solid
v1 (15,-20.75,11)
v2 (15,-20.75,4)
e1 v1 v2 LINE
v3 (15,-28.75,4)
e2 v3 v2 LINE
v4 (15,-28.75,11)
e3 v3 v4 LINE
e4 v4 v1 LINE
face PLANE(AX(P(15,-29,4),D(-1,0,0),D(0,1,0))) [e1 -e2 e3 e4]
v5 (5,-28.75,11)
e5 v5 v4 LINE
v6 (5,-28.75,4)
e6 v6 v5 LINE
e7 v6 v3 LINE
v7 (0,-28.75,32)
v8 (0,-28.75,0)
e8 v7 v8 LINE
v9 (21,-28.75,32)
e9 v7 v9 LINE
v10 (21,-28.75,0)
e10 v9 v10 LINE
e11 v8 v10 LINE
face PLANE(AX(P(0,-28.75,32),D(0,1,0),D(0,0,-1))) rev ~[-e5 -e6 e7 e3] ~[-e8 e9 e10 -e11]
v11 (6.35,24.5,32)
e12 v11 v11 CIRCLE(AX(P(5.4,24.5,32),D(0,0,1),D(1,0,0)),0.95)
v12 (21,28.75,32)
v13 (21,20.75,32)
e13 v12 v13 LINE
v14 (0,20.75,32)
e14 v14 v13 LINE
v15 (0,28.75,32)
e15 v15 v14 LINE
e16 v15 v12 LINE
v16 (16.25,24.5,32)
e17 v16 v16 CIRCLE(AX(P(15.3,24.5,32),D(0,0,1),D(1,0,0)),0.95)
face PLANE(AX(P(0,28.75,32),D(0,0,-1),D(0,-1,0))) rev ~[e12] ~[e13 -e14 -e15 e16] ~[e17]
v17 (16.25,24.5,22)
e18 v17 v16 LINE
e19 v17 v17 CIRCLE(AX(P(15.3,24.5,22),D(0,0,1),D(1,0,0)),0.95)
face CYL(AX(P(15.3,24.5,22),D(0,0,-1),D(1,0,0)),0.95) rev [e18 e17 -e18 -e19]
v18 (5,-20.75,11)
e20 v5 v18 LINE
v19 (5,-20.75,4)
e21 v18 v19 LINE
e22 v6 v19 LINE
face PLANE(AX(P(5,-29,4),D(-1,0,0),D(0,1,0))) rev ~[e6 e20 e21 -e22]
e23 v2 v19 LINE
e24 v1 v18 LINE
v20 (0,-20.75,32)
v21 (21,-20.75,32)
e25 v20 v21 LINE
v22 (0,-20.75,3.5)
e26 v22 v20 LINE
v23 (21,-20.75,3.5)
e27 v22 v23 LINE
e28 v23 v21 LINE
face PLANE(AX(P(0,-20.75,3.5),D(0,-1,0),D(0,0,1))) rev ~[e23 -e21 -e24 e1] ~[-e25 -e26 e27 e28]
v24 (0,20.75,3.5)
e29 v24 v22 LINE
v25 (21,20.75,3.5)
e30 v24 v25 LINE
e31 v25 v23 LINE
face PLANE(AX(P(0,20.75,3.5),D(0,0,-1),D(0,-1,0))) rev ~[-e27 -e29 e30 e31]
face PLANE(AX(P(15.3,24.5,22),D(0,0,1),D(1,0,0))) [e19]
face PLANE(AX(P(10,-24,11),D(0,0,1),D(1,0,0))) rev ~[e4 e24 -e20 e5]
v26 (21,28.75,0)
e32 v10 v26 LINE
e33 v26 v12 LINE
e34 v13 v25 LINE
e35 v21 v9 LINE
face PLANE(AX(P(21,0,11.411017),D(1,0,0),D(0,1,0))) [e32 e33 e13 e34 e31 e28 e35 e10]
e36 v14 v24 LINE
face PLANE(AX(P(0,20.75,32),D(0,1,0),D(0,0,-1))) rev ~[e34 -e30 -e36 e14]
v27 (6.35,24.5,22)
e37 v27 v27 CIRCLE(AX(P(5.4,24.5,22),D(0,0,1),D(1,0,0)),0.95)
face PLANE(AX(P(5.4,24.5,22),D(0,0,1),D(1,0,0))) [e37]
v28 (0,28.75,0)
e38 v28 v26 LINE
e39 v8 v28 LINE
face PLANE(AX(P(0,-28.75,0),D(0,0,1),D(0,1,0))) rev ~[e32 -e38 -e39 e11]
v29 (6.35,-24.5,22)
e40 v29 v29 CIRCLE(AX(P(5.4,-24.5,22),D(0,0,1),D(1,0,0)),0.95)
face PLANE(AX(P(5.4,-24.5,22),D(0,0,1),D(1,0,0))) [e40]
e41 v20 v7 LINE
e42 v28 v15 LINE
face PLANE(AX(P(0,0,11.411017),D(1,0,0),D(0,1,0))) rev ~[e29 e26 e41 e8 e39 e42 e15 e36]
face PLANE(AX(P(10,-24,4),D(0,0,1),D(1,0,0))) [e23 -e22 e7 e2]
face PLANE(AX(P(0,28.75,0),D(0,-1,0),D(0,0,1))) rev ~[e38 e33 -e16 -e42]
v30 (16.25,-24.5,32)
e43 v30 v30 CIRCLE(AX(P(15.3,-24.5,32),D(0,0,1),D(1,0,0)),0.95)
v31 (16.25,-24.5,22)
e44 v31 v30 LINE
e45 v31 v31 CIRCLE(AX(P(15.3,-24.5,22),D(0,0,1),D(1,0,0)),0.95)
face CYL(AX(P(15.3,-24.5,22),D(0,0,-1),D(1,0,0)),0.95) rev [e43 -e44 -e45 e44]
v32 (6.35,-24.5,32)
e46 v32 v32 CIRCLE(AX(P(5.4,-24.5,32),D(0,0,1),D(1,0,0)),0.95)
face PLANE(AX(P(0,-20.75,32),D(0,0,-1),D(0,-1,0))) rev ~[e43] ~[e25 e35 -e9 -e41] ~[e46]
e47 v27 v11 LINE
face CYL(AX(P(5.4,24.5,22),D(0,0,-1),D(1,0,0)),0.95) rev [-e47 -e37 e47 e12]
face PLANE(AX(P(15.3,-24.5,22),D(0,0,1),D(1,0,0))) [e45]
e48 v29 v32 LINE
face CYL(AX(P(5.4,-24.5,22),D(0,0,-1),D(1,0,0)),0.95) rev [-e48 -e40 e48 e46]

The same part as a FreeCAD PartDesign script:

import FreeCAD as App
import Part
import Sketcher
from FreeCAD import Vector
Q = App.Units.Quantity

doc = App.newDocument("Part")
params = doc.addObject("Spreadsheet::Sheet", "Params")
for row, (alias, value) in enumerate([
    ("sketch1_diameter", "1.9 mm"),
    ("pad1_length", "10 mm"),
    ("sketch2_diameter", "1.9 mm"),
    ("pad2_length", "10 mm"),
    ("sketch3_diameter", "1.9 mm"),
    ("pad3_length", "10 mm"),
    ("sketch4_diameter", "1.9 mm"),
    ("pad4_length", "10 mm"),
    ("sketch5_width", "10 mm"),
    ("pad5_length", "7 mm"),
    ("sketch6_width", "8 mm"),
    ("sketch6_height", "32 mm"),
    ("sketch6_width2", "57.5 mm"),
    ("sketch6_height2", "28.5 mm"),
    ("pad6_length", "21 mm"),
], start=1):
    params.set(f"A{row}", alias)
    params.set(f"B{row}", "=" + value)
    params.setAlias(f"B{row}", alias)

body = doc.addObject("PartDesign::Body", "Body")

# Sketch on XY plane
sketch1 = body.newObject("Sketcher::SketchObject", "Sketch")
sketch1.AttachmentSupport = (doc.getObject("XY_Plane"), [""])
sketch1.MapMode = "FlatFace"
sketch1.addGeometry(Part.Circle(Vector(9.9, 0, 0), Vector(0, 0, 1), 0.9), False)
sketch1.addConstraint(Sketcher.Constraint("PointOnObject", 0, 3, -1))
sketch1.addConstraint(Sketcher.Constraint("Diameter", 0, Q("1.9 mm")))
sketch1.addConstraint(Sketcher.Constraint("DistanceX", -1, 1, 0, 3, Q("9.9 mm")))
sketch1.setExpression("Constraints[1]", "Params.sketch1_diameter")
pad1 = body.newObject("PartDesign::Pad", "Pad")
pad1.Profile = sketch1
pad1.setExpression("Length", "Params.pad1_length")
body2 = doc.addObject("PartDesign::Body", "Body001")
body2.AllowCompound = True

# Sketch on XY plane
sketch2 = body2.newObject("Sketcher::SketchObject", "Sketch001")
sketch2.AttachmentSupport = (doc.getObject("XY_Plane001"), [""])
sketch2.MapMode = "FlatFace"
sketch2.addGeometry(Part.Circle(Vector(0, 0, 0), Vector(0, 0, 1), 0.9), False)
sketch2.addConstraint(Sketcher.Constraint("Coincident", 0, 3, -1, 1))
sketch2.addConstraint(Sketcher.Constraint("Diameter", 0, Q("1.9 mm")))
sketch2.setExpression("Constraints[1]", "Params.sketch2_diameter")
pad2 = body2.newObject("PartDesign::Pad", "Pad001")
pad2.Profile = sketch2
pad2.setExpression("Length", "Params.pad2_length")
doc.recompute()

boolean = body2.newObject("PartDesign::Boolean", "Boolean")
boolean.Type = "Fuse"
boolean.addObjects([body])
body3 = doc.addObject("PartDesign::Body", "Body002")
body3.AllowCompound = True
doc.recompute()

body2.Placement = App.Placement(Vector(5, -24.5, 22), App.Rotation(Vector(0, 0, 1), 0))
boolean2 = body3.newObject("PartDesign::Boolean", "Boolean001")
boolean2.Type = "Fuse"
boolean2.addObjects([body2])
body4 = doc.addObject("PartDesign::Body", "Body003")

# Sketch on XY plane
sketch3 = body4.newObject("Sketcher::SketchObject", "Sketch002")
sketch3.AttachmentSupport = (doc.getObject("XY_Plane003"), [""])
sketch3.MapMode = "FlatFace"
sketch3.addGeometry(Part.Circle(Vector(9.9, 0, 0), Vector(0, 0, 1), 0.9), False)
sketch3.addConstraint(Sketcher.Constraint("PointOnObject", 0, 3, -1))
sketch3.addConstraint(Sketcher.Constraint("Diameter", 0, Q("1.9 mm")))
sketch3.addConstraint(Sketcher.Constraint("DistanceX", -1, 1, 0, 3, Q("9.9 mm")))
sketch3.setExpression("Constraints[1]", "Params.sketch3_diameter")
pad3 = body4.newObject("PartDesign::Pad", "Pad002")
pad3.Profile = sketch3
pad3.setExpression("Length", "Params.pad3_length")
body5 = doc.addObject("PartDesign::Body", "Body004")
body5.AllowCompound = True

# Sketch on XY plane
sketch4 = body5.newObject("Sketcher::SketchObject", "Sketch003")
sketch4.AttachmentSupport = (doc.getObject("XY_Plane004"), [""])
sketch4.MapMode = "FlatFace"
sketch4.addGeometry(Part.Circle(Vector(0, 0, 0), Vector(0, 0, 1), 0.9), False)
sketch4.addConstraint(Sketcher.Constraint("Coincident", 0, 3, -1, 1))
sketch4.addConstraint(Sketcher.Constraint("Diameter", 0, Q("1.9 mm")))
sketch4.setExpression("Constraints[1]", "Params.sketch4_diameter")
pad4 = body5.newObject("PartDesign::Pad", "Pad003")
pad4.Profile = sketch4
pad4.setExpression("Length", "Params.pad4_length")
doc.recompute()

boolean3 = body5.newObject("PartDesign::Boolean", "Boolean002")
boolean3.Type = "Fuse"
boolean3.addObjects([body4])
body6 = doc.addObject("PartDesign::Body", "Body005")
body6.AllowCompound = True
doc.recompute()

body5.Placement = App.Placement(Vector(5, 24.5, 22), App.Rotation(Vector(0, 0, 1), 0))
boolean4 = body6.newObject("PartDesign::Boolean", "Boolean003")
boolean4.Type = "Fuse"
boolean4.addObjects([body5])
doc.recompute()

boolean5 = body6.newObject("PartDesign::Boolean", "Boolean004")
boolean5.Type = "Fuse"
boolean5.addObjects([body3])
body7 = doc.addObject("PartDesign::Body", "Body006")
body7.AllowCompound = True
doc.recompute()

body6.Placement = App.Placement(Vector(0.4, 0, 0), App.Rotation(Vector(0, 0, 1), 0))
boolean6 = body7.newObject("PartDesign::Boolean", "Boolean005")
boolean6.Type = "Fuse"
boolean6.addObjects([body6])
body8 = doc.addObject("PartDesign::Body", "Body007")

# Sketch on XY plane
sketch5 = body8.newObject("Sketcher::SketchObject", "Sketch004")
sketch5.AttachmentSupport = (doc.getObject("XY_Plane007"), [""])
sketch5.MapMode = "FlatFace"
sketch5.AttachmentOffset = App.Placement(Vector(0, 0, 4), App.Rotation())
sketch5.addGeometry(Part.LineSegment(Vector(5, -19, 0), Vector(5, -29, 0)), False)
sketch5.addGeometry(Part.LineSegment(Vector(5, -29, 0), Vector(15, -29, 0)), False)
sketch5.addGeometry(Part.LineSegment(Vector(15, -29, 0), Vector(15, -19, 0)), False)
sketch5.addGeometry(Part.LineSegment(Vector(15, -19, 0), Vector(5, -19, 0)), False)
sketch5.addConstraint(Sketcher.Constraint("Coincident", 0, 2, 1, 1))
sketch5.addConstraint(Sketcher.Constraint("Coincident", 1, 2, 2, 1))
sketch5.addConstraint(Sketcher.Constraint("Coincident", 2, 2, 3, 1))
sketch5.addConstraint(Sketcher.Constraint("Coincident", 3, 2, 0, 1))
sketch5.addConstraint(Sketcher.Constraint("Vertical", 0))
sketch5.addConstraint(Sketcher.Constraint("Horizontal", 1))
sketch5.addConstraint(Sketcher.Constraint("Vertical", 2))
sketch5.addConstraint(Sketcher.Constraint("Horizontal", 3))
sketch5.addConstraint(Sketcher.Constraint("Equal", 3, 0))
sketch5.addConstraint(Sketcher.Constraint("DistanceX", 1, 1, 1, 2, Q("10 mm")))
sketch5.addConstraint(Sketcher.Constraint("DistanceX", -1, 1, 0, 2, Q("5 mm")))
sketch5.addConstraint(Sketcher.Constraint("DistanceY", 0, 2, -1, 1, Q("29 mm")))
sketch5.setExpression("Constraints[9]", "Params.sketch5_width")
pad5 = body8.newObject("PartDesign::Pad", "Pad004")
pad5.Profile = sketch5
pad5.setExpression("Length", "Params.pad5_length")
body9 = doc.addObject("PartDesign::Body", "Body008")

# Sketch on YZ plane
sketch6 = body9.newObject("Sketcher::SketchObject", "Sketch005")
sketch6.AttachmentSupport = (doc.getObject("YZ_Plane008"), [""])
sketch6.MapMode = "FlatFace"
sketch6.addGeometry(Part.LineSegment(Vector(-29, 32, 0), Vector(-29, 0, 0)), False)
sketch6.addGeometry(Part.LineSegment(Vector(-29, 0, 0), Vector(29, 0, 0)), False)
sketch6.addGeometry(Part.LineSegment(Vector(29, 0, 0), Vector(29, 32, 0)), False)
sketch6.addGeometry(Part.LineSegment(Vector(29, 32, 0), Vector(21, 32, 0)), False)
sketch6.addGeometry(Part.LineSegment(Vector(21, 32, 0), Vector(21, 4, 0)), False)
sketch6.addGeometry(Part.LineSegment(Vector(21, 4, 0), Vector(-21, 4, 0)), False)
sketch6.addGeometry(Part.LineSegment(Vector(-21, 4, 0), Vector(-21, 32, 0)), False)
sketch6.addGeometry(Part.LineSegment(Vector(-21, 32, 0), Vector(-29, 32, 0)), False)
sketch6.addConstraint(Sketcher.Constraint("Coincident", 0, 2, 1, 1))
sketch6.addConstraint(Sketcher.Constraint("Coincident", 1, 2, 2, 1))
sketch6.addConstraint(Sketcher.Constraint("Coincident", 2, 2, 3, 1))
sketch6.addConstraint(Sketcher.Constraint("Coincident", 3, 2, 4, 1))
sketch6.addConstraint(Sketcher.Constraint("Coincident", 4, 2, 5, 1))
sketch6.addConstraint(Sketcher.Constraint("Coincident", 5, 2, 6, 1))
sketch6.addConstraint(Sketcher.Constraint("Coincident", 6, 2, 7, 1))
sketch6.addConstraint(Sketcher.Constraint("Coincident", 7, 2, 0, 1))
sketch6.addConstraint(Sketcher.Constraint("Vertical", 0))
sketch6.addConstraint(Sketcher.Constraint("Horizontal", 1))
sketch6.addConstraint(Sketcher.Constraint("Vertical", 2))
sketch6.addConstraint(Sketcher.Constraint("Horizontal", 3))
sketch6.addConstraint(Sketcher.Constraint("Vertical", 4))
sketch6.addConstraint(Sketcher.Constraint("Horizontal", 5))
sketch6.addConstraint(Sketcher.Constraint("Vertical", 6))
sketch6.addConstraint(Sketcher.Constraint("Horizontal", 7))
sketch6.addConstraint(Sketcher.Constraint("Symmetric", 0, 2, 1, 2, -1, 1))
sketch6.addConstraint(Sketcher.Constraint("Symmetric", 3, 2, 6, 2, -2))
sketch6.addConstraint(Sketcher.Constraint("DistanceX", 3, 2, 3, 1, Q("8 mm")))
sketch6.addConstraint(Sketcher.Constraint("DistanceY", 0, 2, 0, 1, Q("32 mm")))
sketch6.addConstraint(Sketcher.Constraint("DistanceX", 1, 1, 1, 2, Q("57.5 mm")))
sketch6.addConstraint(Sketcher.Constraint("DistanceY", 4, 2, 4, 1, Q("28.5 mm")))
sketch6.setExpression("Constraints[18]", "Params.sketch6_width")
sketch6.setExpression("Constraints[19]", "Params.sketch6_height")
sketch6.setExpression("Constraints[20]", "Params.sketch6_width2")
sketch6.setExpression("Constraints[21]", "Params.sketch6_height2")
pad6 = body9.newObject("PartDesign::Pad", "Pad005")
pad6.Profile = sketch6
pad6.setExpression("Length", "Params.pad6_length")
doc.recompute()

boolean7 = body9.newObject("PartDesign::Boolean", "Boolean006")
boolean7.Type = "Cut"
boolean7.addObjects([body8])
doc.recompute()

boolean8 = body9.newObject("PartDesign::Boolean", "Boolean007")
boolean8.Type = "Cut"
boolean8.addObjects([body7])

doc.recompute()
